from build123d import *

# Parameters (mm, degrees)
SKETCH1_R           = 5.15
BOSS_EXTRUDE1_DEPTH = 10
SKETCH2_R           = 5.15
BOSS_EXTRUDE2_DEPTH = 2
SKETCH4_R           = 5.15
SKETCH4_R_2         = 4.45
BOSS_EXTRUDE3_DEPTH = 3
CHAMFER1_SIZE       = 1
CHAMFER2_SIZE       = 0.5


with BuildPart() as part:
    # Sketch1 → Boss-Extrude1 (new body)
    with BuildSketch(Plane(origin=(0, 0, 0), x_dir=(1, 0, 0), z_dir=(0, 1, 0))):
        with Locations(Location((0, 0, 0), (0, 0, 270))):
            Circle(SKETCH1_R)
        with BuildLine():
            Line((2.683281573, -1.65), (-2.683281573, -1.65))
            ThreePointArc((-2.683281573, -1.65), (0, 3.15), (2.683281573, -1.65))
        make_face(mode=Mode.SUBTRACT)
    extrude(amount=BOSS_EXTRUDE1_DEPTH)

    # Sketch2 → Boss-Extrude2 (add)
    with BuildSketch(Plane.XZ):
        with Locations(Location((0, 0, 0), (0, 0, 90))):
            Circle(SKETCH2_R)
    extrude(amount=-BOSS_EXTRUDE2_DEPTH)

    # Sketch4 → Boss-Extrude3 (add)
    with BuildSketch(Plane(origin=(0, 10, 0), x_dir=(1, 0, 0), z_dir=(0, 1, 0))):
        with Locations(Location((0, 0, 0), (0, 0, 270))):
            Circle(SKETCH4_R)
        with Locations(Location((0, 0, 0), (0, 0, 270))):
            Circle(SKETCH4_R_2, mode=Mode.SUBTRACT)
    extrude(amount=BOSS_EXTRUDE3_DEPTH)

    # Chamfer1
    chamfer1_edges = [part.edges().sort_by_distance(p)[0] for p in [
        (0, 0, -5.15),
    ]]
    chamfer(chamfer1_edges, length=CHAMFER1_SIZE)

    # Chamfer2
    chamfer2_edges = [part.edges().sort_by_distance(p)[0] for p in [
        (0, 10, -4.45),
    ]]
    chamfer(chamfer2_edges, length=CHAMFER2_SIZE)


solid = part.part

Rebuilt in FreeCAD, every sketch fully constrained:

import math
import FreeCAD as App
import Part
import Sketcher


def edges_at(feature, points):
    """Names of the edges that pass closest to the given points."""
    edges = feature.Shape.Edges
    near = lambda p: min(range(len(edges)), key=lambda i: edges[i].distToShape(Part.Vertex(*p))[0])
    return sorted({f"Edge{near(p) + 1}" for p in points})

doc = App.newDocument("Part")
params = doc.addObject("Spreadsheet::Sheet", "Params")
for row, (alias, value) in enumerate([
    ("sketch1_diameter", "10.3 mm"),
    ("sketch1_radius", "3.15 mm"),
    ("pad1_length", "10 mm"),
    ("sketch2_diameter", "10.3 mm"),
    ("pad2_length", "2 mm"),
    ("sketch3_diameter", "10.3 mm"),
    ("sketch3_diameter2", "8.9 mm"),
    ("pad3_length", "3 mm"),
    ("chamfer_size", "1 mm"),
    ("chamfer2_size", "0.5 mm"),
], start=1):
    params.set(f"A{row}", alias)
    params.set(f"B{row}", "=" + value)
    params.setAlias(f"B{row}", alias)

body = doc.addObject("PartDesign::Body", "Body")

sketch1 = body.newObject("Sketcher::SketchObject", "Sketch")
sketch1.AttachmentSupport = (doc.getObject("XZ_Plane"), [""])
sketch1.MapMode = "FlatFace"
sketch1.addGeometry([
    Part.Circle(App.Vector(0, 0, 0), App.Vector(0, 0, 1), 5.15),
    Part.ArcOfCircle(Part.Circle(App.Vector(0, 0, 0), App.Vector(0, 0, 1), 3.15), math.radians(148.411864), math.radians(391.588136)),
    Part.LineSegment(App.Vector(2.683282, 1.65, 0), App.Vector(-2.683282, 1.65, 0)),
], False)
sketch1.addConstraint([
    Sketcher.Constraint("Coincident", 1, 1, 2, 2),
    Sketcher.Constraint("Coincident", 2, 1, 1, 2),
    Sketcher.Constraint("Horizontal", 2),
    Sketcher.Constraint("Coincident", 0, 3, -1, 1),
    Sketcher.Constraint("Coincident", 1, 3, -1, 1),
    Sketcher.Constraint("Diameter", 0, 10.3),
    Sketcher.Constraint("Radius", 1, 3.15),
    Sketcher.Constraint("DistanceY", -1, 1, 1, 1, 1.65),
])
sketch1.setExpression("Constraints[5]", "Params.sketch1_diameter")
sketch1.setExpression("Constraints[6]", "Params.sketch1_radius")
pad1 = body.newObject("PartDesign::Pad", "Pad")
pad1.Profile = sketch1
pad1.setExpression("Length", "Params.pad1_length")
pad1.Reversed = True

sketch2 = body.newObject("Sketcher::SketchObject", "Sketch001")
sketch2.AttachmentSupport = (doc.getObject("XZ_Plane"), [""])
sketch2.MapMode = "FlatFace"
sketch2.addGeometry(Part.Circle(App.Vector(0, 0, 0), App.Vector(0, 0, 1), 5.15), False)
sketch2.addConstraint([
    Sketcher.Constraint("Coincident", 0, 3, -1, 1),
    Sketcher.Constraint("Diameter", 0, 10.3),
])
sketch2.setExpression("Constraints[1]", "Params.sketch2_diameter")
pad2 = body.newObject("PartDesign::Pad", "Pad001")
pad2.Profile = sketch2
pad2.setExpression("Length", "Params.pad2_length")
pad2.Reversed = True

sketch3 = body.newObject("Sketcher::SketchObject", "Sketch002")
sketch3.AttachmentSupport = (doc.getObject("XZ_Plane"), [""])
sketch3.MapMode = "FlatFace"
sketch3.AttachmentOffset = App.Placement(App.Vector(0, 0, -10), App.Rotation())
sketch3.addGeometry([
    Part.Circle(App.Vector(0, 0, 0), App.Vector(0, 0, 1), 5.15),
    Part.Circle(App.Vector(0, 0, 0), App.Vector(0, 0, 1), 4.45),
], False)
sketch3.addConstraint([
    Sketcher.Constraint("Coincident", 0, 3, -1, 1),
    Sketcher.Constraint("Coincident", 1, 3, -1, 1),
    Sketcher.Constraint("Diameter", 0, 10.3),
    Sketcher.Constraint("Diameter", 1, 8.9),
])
sketch3.setExpression("Constraints[2]", "Params.sketch3_diameter")
sketch3.setExpression("Constraints[3]", "Params.sketch3_diameter2")
pad3 = body.newObject("PartDesign::Pad", "Pad002")
pad3.Profile = sketch3
pad3.setExpression("Length", "Params.pad3_length")
pad3.Reversed = True
doc.recompute()

chamfer = body.newObject("PartDesign::Chamfer", "Chamfer")
chamfer.Base = (pad3, edges_at(pad3, [(0, 0, -5.15)]))
chamfer.setExpression("Size", "Params.chamfer_size")
doc.recompute()

chamfer2 = body.newObject("PartDesign::Chamfer", "Chamfer001")
chamfer2.Base = (chamfer, edges_at(chamfer, [(0, 10, -4.45)]))
chamfer2.setExpression("Size", "Params.chamfer2_size")

doc.recompute()
